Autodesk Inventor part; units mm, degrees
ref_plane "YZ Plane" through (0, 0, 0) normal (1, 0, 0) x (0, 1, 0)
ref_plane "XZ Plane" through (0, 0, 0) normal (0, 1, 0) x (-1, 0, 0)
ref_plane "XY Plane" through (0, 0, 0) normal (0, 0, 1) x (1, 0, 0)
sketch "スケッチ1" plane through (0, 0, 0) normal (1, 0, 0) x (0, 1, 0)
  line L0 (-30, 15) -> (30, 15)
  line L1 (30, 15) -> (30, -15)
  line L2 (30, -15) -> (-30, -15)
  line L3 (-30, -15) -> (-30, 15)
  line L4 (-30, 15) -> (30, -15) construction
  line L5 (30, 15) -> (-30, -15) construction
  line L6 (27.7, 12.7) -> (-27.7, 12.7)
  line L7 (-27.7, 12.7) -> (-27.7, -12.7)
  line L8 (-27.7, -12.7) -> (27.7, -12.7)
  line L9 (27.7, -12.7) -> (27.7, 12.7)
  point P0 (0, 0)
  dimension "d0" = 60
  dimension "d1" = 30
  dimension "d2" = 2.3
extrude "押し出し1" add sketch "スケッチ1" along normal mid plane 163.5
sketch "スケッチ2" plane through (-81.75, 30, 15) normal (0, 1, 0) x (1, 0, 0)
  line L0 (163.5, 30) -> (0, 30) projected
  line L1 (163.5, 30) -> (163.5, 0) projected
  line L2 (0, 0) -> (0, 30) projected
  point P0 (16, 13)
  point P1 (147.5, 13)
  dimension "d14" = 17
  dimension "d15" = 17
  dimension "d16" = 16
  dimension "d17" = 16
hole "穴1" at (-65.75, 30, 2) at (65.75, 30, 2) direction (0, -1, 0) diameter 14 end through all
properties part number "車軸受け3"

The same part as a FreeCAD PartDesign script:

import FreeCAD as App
import Part
import Sketcher
from FreeCAD import Vector
Q = App.Units.Quantity


def add_polygon(sketch, points):
    """Adds a closed chain of lines whose ends are joined by coincident constraints."""
    first, n = sketch.GeometryCount, len(points)
    for a, b in zip(points, points[1:] + points[:1]):
        sketch.addGeometry(Part.LineSegment(App.Vector(*a, 0), App.Vector(*b, 0)), False)
    for i in range(n):
        sketch.addConstraint(Sketcher.Constraint("Coincident", first + i, 2, first + (i + 1) % n, 1))

doc = App.newDocument("Part")
body = doc.addObject("PartDesign::Body", "Body")

# Sketch on YZ plane
sketch1 = body.newObject("Sketcher::SketchObject", "Sketch")
sketch1.AttachmentSupport = (doc.getObject("YZ_Plane"), [""])
sketch1.MapMode = "FlatFace"
add_polygon(sketch1, [(30, 15), (-30, 15), (-30, -15), (30, -15)])  # lines 0-3
add_polygon(sketch1, [(-27.7, 12.7), (27.7, 12.7), (27.7, -12.7), (-27.7, -12.7)])  # lines 4-7
sketch1.addConstraint([
    Sketcher.Constraint("Horizontal", 0),
    Sketcher.Constraint("Vertical", 1),
    Sketcher.Constraint("Horizontal", 2),
    Sketcher.Constraint("Vertical", 3),
    Sketcher.Constraint("Horizontal", 4),
    Sketcher.Constraint("Vertical", 5),
    Sketcher.Constraint("Horizontal", 6),
    Sketcher.Constraint("Vertical", 7),
    Sketcher.Constraint("Symmetric", 0, 2, 2, 2, -1, 1),
    Sketcher.Constraint("Symmetric", 4, 2, 6, 2, -1, 1),
    Sketcher.Constraint("DistanceX", 0, 2, 0, 1, Q("60 mm")),
    Sketcher.Constraint("DistanceY", 1, 2, 1, 1, Q("30 mm")),
    Sketcher.Constraint("DistanceX", 4, 2, 3, 2, Q("2.3 mm")),
    Sketcher.Constraint("DistanceY", 4, 2, 3, 2, Q("2.3 mm")),
])
pad1 = body.newObject("PartDesign::Pad", "Pad")
pad1.Profile = sketch1
pad1.Length = 163.5
pad1.Midplane = True

# Sketch on XZ plane
sketch2 = body.newObject("Sketcher::SketchObject", "Sketch001")
sketch2.AttachmentSupport = (doc.getObject("XZ_Plane"), [""])
sketch2.MapMode = "FlatFace"
sketch2.AttachmentOffset = App.Placement(Vector(0, 0, -30), App.Rotation())
sketch2.addGeometry([
    Part.Circle(Vector(-65.75, 2, 0), Vector(0, 0, 1), 7),
    Part.Circle(Vector(65.75, 2, 0), Vector(0, 0, 1), 7),
], False)
sketch2.addConstraint([
    Sketcher.Constraint("Equal", 0, 1),
    Sketcher.Constraint("Symmetric", 0, 3, 1, 3, -2),
    Sketcher.Constraint("Diameter", 0, Q("14 mm")),
    Sketcher.Constraint("DistanceY", -1, 1, 0, 3, Q("2 mm")),
    Sketcher.Constraint("DistanceX", 0, 3, 1, 3, Q("131.5 mm")),
])
doc.recompute()
hole = body.newObject("PartDesign::Hole", "Hole")
hole.Profile = sketch2
hole.ThreadType = "None"
hole.Diameter = 14
hole.DepthType = "ThroughAll"
hole.Reversed = True

doc.recompute()
